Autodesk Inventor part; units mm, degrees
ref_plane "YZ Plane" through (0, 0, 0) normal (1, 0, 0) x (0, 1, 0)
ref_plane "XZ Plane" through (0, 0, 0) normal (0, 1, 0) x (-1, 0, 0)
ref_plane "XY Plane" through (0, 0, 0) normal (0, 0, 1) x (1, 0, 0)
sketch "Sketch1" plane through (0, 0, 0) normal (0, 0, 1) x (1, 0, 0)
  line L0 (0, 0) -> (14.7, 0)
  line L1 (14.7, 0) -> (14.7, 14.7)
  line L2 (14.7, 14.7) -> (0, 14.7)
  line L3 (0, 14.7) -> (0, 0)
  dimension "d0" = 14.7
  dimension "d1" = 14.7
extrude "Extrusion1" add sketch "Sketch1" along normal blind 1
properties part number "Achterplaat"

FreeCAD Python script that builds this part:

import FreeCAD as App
import Part
import Sketcher


def add_polygon(sketch, points):
    """Adds a closed chain of lines whose ends are joined by coincident constraints."""
    first, n = sketch.GeometryCount, len(points)
    for a, b in zip(points, points[1:] + points[:1]):
        sketch.addGeometry(Part.LineSegment(App.Vector(*a, 0), App.Vector(*b, 0)), False)
    for i in range(n):
        sketch.addConstraint(Sketcher.Constraint("Coincident", first + i, 2, first + (i + 1) % n, 1))

doc = App.newDocument("Part")
body = doc.addObject("PartDesign::Body", "Body")

sketch1 = body.newObject("Sketcher::SketchObject", "Sketch")
sketch1.AttachmentSupport = (doc.getObject("XY_Plane"), [""])
sketch1.MapMode = "FlatFace"
add_polygon(sketch1, [(0, 14.7), (0, 0), (14.7, 0), (14.7, 14.7)])
sketch1.addConstraint(Sketcher.Constraint("Vertical", 0))
sketch1.addConstraint(Sketcher.Constraint("Horizontal", 1))
sketch1.addConstraint(Sketcher.Constraint("Vertical", 2))
sketch1.addConstraint(Sketcher.Constraint("Horizontal", 3))
sketch1.addConstraint(Sketcher.Constraint("Coincident", 0, 2, -1, 1))
sketch1.addConstraint(Sketcher.Constraint("Equal", 3, 0))
sketch1.addConstraint(Sketcher.Constraint("DistanceX", 1, 1, 1, 2, 14.7))
pad1 = body.newObject("PartDesign::Pad", "Pad")
pad1.Profile = sketch1
pad1.Length = 1

doc.recompute()
